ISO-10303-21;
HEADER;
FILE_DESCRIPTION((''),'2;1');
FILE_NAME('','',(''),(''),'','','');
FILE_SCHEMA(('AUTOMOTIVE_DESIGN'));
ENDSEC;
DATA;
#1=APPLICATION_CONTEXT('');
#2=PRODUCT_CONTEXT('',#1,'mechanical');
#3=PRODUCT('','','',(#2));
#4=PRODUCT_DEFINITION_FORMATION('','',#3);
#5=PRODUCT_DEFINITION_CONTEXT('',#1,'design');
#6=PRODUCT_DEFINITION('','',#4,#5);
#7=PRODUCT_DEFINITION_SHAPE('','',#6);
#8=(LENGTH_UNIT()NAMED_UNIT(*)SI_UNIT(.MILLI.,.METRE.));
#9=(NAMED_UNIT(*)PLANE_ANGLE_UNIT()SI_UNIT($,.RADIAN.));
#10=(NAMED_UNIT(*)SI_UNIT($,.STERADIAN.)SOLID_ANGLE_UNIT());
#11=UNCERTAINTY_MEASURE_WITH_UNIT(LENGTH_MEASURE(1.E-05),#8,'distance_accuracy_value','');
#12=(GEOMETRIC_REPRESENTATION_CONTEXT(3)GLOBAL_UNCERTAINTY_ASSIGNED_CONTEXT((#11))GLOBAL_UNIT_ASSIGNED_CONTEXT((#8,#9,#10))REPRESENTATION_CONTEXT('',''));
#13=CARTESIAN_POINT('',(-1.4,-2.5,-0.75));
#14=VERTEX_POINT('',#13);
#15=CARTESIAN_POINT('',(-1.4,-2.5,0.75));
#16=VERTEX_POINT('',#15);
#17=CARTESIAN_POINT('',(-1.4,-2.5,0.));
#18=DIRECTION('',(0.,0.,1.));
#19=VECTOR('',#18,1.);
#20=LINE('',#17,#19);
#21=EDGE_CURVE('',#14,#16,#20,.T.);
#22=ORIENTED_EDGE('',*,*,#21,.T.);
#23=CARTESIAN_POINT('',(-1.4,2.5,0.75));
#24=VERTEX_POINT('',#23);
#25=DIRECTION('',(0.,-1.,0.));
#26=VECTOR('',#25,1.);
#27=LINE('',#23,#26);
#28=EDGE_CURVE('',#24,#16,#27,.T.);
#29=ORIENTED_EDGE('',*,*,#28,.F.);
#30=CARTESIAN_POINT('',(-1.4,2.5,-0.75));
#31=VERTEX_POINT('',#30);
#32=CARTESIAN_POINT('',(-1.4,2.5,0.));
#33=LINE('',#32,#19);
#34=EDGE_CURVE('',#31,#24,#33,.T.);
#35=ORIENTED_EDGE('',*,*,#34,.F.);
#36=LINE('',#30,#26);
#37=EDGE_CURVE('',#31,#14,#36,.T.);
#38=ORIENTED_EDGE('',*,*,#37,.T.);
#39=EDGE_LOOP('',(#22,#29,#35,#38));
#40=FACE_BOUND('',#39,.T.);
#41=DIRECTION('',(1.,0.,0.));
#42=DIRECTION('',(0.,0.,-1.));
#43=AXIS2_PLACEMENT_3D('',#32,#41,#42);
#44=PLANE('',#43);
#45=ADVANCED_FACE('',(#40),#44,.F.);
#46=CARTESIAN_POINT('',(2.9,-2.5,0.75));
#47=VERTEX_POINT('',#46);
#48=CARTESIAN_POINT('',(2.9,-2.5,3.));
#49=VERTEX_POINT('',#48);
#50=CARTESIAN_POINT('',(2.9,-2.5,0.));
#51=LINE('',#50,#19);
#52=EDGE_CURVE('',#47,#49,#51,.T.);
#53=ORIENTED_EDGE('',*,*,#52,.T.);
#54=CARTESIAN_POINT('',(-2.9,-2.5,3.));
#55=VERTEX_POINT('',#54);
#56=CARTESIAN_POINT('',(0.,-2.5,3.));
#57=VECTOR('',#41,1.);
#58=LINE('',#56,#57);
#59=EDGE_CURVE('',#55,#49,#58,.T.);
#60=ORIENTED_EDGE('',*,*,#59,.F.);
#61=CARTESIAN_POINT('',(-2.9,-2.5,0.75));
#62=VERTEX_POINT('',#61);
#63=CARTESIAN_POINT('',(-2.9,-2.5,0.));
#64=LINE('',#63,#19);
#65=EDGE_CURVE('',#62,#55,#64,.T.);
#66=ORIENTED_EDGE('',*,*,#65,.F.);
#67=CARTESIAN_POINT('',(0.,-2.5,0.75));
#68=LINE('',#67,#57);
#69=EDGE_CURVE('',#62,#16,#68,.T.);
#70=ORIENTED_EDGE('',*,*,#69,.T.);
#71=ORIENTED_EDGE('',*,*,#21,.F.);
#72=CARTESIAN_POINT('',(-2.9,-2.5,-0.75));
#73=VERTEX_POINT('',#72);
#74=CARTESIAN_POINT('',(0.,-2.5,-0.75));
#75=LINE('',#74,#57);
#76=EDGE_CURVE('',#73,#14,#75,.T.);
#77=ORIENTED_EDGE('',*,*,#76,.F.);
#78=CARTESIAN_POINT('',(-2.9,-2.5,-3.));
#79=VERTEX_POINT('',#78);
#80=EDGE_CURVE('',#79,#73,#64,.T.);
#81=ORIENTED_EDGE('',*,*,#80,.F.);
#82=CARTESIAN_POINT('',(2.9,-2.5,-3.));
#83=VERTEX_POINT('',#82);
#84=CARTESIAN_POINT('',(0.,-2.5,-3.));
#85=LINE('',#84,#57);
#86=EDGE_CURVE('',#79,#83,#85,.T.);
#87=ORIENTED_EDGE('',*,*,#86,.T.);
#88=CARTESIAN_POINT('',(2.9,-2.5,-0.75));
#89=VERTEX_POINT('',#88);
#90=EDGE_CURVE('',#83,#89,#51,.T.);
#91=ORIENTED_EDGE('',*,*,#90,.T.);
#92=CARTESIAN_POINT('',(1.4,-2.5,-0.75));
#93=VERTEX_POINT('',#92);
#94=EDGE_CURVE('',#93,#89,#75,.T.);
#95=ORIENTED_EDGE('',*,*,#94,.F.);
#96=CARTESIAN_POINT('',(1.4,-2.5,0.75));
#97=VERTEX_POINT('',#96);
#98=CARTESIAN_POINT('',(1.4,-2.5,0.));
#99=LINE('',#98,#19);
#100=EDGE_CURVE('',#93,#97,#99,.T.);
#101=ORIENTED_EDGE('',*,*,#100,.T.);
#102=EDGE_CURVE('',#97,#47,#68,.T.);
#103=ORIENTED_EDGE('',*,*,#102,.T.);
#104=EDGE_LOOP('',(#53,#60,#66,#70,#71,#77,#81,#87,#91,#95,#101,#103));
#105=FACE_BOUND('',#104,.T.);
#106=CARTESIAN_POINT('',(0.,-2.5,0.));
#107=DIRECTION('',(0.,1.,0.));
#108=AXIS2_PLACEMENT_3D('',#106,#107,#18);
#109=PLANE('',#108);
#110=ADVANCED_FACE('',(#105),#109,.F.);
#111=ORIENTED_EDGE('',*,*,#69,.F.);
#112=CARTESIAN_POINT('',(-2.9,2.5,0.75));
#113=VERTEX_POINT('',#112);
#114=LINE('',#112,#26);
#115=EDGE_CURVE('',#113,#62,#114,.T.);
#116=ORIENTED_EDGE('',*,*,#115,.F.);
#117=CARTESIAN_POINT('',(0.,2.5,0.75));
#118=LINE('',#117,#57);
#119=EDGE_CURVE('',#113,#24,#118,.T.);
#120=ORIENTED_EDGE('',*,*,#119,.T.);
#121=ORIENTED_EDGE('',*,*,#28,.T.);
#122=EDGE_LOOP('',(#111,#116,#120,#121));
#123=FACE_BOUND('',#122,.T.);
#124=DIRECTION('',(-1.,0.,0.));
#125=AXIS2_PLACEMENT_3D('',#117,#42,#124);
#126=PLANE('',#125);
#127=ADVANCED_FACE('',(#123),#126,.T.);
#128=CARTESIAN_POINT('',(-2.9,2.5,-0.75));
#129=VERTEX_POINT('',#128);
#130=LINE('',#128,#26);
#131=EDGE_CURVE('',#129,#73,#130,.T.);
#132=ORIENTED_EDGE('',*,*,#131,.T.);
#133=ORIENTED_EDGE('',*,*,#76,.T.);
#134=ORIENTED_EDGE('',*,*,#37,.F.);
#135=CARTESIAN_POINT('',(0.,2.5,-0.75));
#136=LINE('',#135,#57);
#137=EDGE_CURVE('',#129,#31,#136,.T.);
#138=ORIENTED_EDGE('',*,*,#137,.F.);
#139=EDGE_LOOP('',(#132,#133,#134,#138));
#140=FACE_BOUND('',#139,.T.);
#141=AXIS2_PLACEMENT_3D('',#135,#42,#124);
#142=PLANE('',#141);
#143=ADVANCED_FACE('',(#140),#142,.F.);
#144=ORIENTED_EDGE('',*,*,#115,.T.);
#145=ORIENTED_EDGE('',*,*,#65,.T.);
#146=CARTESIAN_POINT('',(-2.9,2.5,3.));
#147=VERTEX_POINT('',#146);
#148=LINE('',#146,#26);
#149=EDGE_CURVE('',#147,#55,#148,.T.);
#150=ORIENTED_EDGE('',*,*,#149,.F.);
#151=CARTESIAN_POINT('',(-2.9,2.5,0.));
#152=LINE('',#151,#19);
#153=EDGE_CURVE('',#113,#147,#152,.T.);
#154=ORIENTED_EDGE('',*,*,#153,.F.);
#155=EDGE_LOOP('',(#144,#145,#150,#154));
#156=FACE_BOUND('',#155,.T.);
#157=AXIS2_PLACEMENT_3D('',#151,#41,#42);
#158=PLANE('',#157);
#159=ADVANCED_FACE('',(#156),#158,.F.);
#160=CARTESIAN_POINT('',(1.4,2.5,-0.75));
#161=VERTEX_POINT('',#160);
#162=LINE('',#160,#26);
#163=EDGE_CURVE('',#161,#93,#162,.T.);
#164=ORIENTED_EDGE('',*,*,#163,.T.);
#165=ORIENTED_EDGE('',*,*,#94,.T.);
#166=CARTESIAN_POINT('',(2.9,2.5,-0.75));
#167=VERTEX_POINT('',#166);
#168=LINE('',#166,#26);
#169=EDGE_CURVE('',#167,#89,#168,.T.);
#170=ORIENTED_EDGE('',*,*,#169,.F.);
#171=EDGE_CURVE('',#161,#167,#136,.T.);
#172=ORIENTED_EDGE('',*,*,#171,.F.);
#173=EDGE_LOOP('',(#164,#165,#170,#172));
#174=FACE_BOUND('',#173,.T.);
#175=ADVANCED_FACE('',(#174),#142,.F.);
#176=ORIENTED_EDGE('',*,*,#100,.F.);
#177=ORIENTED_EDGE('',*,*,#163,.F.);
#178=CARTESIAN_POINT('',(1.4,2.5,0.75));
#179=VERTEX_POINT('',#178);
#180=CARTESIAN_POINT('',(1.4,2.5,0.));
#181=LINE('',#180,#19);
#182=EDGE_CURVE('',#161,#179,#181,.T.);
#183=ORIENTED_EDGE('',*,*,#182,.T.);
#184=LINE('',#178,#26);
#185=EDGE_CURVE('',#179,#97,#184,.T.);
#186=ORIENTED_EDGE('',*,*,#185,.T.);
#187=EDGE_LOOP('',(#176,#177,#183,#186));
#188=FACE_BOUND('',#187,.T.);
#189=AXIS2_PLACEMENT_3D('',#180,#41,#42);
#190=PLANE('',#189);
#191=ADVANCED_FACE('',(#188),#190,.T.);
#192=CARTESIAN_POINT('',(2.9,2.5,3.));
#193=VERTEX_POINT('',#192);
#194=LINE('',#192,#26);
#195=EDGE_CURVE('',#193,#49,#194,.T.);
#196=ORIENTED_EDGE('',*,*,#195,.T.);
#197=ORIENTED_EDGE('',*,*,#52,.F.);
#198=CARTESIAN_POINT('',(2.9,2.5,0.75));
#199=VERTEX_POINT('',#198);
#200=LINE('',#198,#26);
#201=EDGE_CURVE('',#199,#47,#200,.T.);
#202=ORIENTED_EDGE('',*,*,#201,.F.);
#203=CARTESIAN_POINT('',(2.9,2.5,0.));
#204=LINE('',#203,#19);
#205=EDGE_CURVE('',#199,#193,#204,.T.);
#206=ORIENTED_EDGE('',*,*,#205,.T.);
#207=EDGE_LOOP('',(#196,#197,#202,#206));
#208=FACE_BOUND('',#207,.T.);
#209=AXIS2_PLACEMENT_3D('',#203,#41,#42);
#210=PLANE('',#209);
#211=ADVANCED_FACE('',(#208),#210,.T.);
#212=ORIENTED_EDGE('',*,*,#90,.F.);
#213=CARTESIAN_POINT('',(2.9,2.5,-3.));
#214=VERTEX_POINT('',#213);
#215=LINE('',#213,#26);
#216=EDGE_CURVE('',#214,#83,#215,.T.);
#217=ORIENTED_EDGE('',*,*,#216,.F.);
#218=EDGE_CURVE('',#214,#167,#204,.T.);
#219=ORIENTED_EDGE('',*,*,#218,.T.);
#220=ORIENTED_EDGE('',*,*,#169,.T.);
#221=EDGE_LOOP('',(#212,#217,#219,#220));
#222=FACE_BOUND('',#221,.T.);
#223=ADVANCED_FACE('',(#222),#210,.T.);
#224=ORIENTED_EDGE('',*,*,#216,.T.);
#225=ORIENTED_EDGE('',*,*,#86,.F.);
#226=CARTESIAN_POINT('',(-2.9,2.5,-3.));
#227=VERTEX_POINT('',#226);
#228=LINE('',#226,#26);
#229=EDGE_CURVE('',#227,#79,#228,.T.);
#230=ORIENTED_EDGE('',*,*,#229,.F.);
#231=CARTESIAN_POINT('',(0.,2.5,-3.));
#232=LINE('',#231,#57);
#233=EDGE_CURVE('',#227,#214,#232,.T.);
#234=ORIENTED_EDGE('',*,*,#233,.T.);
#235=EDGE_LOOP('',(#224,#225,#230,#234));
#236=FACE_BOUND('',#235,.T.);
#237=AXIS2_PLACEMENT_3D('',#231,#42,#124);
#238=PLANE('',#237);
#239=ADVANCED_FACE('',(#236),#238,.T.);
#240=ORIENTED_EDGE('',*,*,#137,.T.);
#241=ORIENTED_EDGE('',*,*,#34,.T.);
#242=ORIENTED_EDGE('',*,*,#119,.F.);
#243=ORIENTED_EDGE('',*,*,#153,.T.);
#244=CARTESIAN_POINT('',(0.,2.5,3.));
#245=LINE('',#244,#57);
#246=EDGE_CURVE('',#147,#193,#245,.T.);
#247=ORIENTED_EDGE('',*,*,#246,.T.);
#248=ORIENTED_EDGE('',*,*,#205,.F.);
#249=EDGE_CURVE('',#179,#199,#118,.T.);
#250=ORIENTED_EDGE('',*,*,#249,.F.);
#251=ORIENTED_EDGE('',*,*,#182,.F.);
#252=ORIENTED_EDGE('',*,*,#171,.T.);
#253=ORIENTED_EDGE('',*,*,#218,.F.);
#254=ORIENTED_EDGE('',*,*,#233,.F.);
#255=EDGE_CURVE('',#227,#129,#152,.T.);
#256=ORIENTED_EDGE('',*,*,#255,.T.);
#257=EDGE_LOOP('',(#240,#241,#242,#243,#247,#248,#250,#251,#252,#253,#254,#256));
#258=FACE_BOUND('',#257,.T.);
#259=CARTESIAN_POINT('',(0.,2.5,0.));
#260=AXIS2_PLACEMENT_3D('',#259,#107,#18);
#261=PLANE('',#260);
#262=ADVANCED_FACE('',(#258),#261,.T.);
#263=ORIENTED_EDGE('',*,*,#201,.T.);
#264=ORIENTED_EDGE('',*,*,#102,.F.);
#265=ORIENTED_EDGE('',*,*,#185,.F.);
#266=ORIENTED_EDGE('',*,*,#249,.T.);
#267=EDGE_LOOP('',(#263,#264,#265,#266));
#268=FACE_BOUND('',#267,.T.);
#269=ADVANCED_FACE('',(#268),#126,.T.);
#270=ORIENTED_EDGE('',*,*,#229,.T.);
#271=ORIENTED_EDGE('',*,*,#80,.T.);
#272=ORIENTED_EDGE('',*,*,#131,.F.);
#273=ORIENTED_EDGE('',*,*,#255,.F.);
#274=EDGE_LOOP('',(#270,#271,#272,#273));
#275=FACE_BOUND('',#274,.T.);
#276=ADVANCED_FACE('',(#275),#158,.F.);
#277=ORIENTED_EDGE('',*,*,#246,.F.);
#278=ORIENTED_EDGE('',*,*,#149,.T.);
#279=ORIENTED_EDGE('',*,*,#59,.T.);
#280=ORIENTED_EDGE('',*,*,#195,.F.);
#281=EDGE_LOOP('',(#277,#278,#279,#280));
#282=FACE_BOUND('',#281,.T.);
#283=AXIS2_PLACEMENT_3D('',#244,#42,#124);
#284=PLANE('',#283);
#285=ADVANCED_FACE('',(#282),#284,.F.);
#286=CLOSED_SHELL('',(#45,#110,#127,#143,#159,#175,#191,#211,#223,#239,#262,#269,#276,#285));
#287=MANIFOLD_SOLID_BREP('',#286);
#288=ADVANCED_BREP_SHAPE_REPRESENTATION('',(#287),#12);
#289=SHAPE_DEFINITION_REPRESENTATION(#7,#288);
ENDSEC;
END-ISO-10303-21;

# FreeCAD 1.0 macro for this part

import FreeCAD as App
import Part
import Sketcher
from FreeCAD import Vector
Q = App.Units.Quantity

doc = App.newDocument("Part")
body = doc.addObject("PartDesign::Body", "Body")

sketch1 = body.newObject("Sketcher::SketchObject", "Sketch")
sketch1.AttachmentSupport = (doc.getObject("XZ_Plane"), [""])
sketch1.MapMode = "FlatFace"
sketch1.addGeometry([
    Part.LineSegment(Vector(2.9, -3, 0), Vector(-2.9, -3, 0)),
    Part.LineSegment(Vector(-2.9, -3, 0), Vector(-2.9, -0.8, 0)),
    Part.LineSegment(Vector(-2.9, -0.8, 0), Vector(-1.4, -0.8, 0)),
    Part.LineSegment(Vector(-1.4, -0.8, 0), Vector(-1.4, 0.8, 0)),
    Part.LineSegment(Vector(-1.4, 0.8, 0), Vector(-2.9, 0.8, 0)),
    Part.LineSegment(Vector(-2.9, 0.8, 0), Vector(-2.9, 3, 0)),
    Part.LineSegment(Vector(-2.9, 3, 0), Vector(2.9, 3, 0)),
    Part.LineSegment(Vector(2.9, 3, 0), Vector(2.9, 0.8, 0)),
    Part.LineSegment(Vector(2.9, 0.8, 0), Vector(1.4, 0.8, 0)),
    Part.LineSegment(Vector(1.4, 0.8, 0), Vector(1.4, -0.8, 0)),
    Part.LineSegment(Vector(1.4, -0.8, 0), Vector(2.9, -0.8, 0)),
    Part.LineSegment(Vector(2.9, -0.8, 0), Vector(2.9, -3, 0)),
], False)
sketch1.addConstraint([
    Sketcher.Constraint("Coincident", 0, 2, 1, 1),
    Sketcher.Constraint("Coincident", 1, 2, 2, 1),
    Sketcher.Constraint("Coincident", 2, 2, 3, 1),
    Sketcher.Constraint("Coincident", 3, 2, 4, 1),
    Sketcher.Constraint("Coincident", 4, 2, 5, 1),
    Sketcher.Constraint("Coincident", 5, 2, 6, 1),
    Sketcher.Constraint("Coincident", 6, 2, 7, 1),
    Sketcher.Constraint("Coincident", 7, 2, 8, 1),
    Sketcher.Constraint("Coincident", 8, 2, 9, 1),
    Sketcher.Constraint("Coincident", 9, 2, 10, 1),
    Sketcher.Constraint("Coincident", 10, 2, 11, 1),
    Sketcher.Constraint("Coincident", 11, 2, 0, 1),
    Sketcher.Constraint("Horizontal", 0),
    Sketcher.Constraint("Vertical", 1),
    Sketcher.Constraint("Horizontal", 2),
    Sketcher.Constraint("Vertical", 3),
    Sketcher.Constraint("Horizontal", 4),
    Sketcher.Constraint("Vertical", 5),
    Sketcher.Constraint("Horizontal", 6),
    Sketcher.Constraint("Vertical", 7),
    Sketcher.Constraint("Horizontal", 8),
    Sketcher.Constraint("Vertical", 9),
    Sketcher.Constraint("Horizontal", 10),
    Sketcher.Constraint("Vertical", 11),
    Sketcher.Constraint("Symmetric", 0, 2, 6, 2, -1, 1),
    Sketcher.Constraint("Symmetric", 2, 2, 8, 2, -1, 1),
    Sketcher.Constraint("Symmetric", 4, 2, 10, 2, -1, 1),
    Sketcher.Constraint("Symmetric", 4, 2, 7, 2, -2),
    Sketcher.Constraint("Equal", 10, 3),
    Sketcher.Constraint("DistanceX", 0, 2, 0, 1, Q("5.8 mm")),
    Sketcher.Constraint("DistanceX", 2, 1, 2, 2, Q("1.5 mm")),
    Sketcher.Constraint("DistanceY", 0, 2, -1, 1, Q("3 mm")),
])
pad1 = body.newObject("PartDesign::Pad", "Pad")
pad1.Profile = sketch1
pad1.Length = 5
pad1.Midplane = True

doc.recompute()
